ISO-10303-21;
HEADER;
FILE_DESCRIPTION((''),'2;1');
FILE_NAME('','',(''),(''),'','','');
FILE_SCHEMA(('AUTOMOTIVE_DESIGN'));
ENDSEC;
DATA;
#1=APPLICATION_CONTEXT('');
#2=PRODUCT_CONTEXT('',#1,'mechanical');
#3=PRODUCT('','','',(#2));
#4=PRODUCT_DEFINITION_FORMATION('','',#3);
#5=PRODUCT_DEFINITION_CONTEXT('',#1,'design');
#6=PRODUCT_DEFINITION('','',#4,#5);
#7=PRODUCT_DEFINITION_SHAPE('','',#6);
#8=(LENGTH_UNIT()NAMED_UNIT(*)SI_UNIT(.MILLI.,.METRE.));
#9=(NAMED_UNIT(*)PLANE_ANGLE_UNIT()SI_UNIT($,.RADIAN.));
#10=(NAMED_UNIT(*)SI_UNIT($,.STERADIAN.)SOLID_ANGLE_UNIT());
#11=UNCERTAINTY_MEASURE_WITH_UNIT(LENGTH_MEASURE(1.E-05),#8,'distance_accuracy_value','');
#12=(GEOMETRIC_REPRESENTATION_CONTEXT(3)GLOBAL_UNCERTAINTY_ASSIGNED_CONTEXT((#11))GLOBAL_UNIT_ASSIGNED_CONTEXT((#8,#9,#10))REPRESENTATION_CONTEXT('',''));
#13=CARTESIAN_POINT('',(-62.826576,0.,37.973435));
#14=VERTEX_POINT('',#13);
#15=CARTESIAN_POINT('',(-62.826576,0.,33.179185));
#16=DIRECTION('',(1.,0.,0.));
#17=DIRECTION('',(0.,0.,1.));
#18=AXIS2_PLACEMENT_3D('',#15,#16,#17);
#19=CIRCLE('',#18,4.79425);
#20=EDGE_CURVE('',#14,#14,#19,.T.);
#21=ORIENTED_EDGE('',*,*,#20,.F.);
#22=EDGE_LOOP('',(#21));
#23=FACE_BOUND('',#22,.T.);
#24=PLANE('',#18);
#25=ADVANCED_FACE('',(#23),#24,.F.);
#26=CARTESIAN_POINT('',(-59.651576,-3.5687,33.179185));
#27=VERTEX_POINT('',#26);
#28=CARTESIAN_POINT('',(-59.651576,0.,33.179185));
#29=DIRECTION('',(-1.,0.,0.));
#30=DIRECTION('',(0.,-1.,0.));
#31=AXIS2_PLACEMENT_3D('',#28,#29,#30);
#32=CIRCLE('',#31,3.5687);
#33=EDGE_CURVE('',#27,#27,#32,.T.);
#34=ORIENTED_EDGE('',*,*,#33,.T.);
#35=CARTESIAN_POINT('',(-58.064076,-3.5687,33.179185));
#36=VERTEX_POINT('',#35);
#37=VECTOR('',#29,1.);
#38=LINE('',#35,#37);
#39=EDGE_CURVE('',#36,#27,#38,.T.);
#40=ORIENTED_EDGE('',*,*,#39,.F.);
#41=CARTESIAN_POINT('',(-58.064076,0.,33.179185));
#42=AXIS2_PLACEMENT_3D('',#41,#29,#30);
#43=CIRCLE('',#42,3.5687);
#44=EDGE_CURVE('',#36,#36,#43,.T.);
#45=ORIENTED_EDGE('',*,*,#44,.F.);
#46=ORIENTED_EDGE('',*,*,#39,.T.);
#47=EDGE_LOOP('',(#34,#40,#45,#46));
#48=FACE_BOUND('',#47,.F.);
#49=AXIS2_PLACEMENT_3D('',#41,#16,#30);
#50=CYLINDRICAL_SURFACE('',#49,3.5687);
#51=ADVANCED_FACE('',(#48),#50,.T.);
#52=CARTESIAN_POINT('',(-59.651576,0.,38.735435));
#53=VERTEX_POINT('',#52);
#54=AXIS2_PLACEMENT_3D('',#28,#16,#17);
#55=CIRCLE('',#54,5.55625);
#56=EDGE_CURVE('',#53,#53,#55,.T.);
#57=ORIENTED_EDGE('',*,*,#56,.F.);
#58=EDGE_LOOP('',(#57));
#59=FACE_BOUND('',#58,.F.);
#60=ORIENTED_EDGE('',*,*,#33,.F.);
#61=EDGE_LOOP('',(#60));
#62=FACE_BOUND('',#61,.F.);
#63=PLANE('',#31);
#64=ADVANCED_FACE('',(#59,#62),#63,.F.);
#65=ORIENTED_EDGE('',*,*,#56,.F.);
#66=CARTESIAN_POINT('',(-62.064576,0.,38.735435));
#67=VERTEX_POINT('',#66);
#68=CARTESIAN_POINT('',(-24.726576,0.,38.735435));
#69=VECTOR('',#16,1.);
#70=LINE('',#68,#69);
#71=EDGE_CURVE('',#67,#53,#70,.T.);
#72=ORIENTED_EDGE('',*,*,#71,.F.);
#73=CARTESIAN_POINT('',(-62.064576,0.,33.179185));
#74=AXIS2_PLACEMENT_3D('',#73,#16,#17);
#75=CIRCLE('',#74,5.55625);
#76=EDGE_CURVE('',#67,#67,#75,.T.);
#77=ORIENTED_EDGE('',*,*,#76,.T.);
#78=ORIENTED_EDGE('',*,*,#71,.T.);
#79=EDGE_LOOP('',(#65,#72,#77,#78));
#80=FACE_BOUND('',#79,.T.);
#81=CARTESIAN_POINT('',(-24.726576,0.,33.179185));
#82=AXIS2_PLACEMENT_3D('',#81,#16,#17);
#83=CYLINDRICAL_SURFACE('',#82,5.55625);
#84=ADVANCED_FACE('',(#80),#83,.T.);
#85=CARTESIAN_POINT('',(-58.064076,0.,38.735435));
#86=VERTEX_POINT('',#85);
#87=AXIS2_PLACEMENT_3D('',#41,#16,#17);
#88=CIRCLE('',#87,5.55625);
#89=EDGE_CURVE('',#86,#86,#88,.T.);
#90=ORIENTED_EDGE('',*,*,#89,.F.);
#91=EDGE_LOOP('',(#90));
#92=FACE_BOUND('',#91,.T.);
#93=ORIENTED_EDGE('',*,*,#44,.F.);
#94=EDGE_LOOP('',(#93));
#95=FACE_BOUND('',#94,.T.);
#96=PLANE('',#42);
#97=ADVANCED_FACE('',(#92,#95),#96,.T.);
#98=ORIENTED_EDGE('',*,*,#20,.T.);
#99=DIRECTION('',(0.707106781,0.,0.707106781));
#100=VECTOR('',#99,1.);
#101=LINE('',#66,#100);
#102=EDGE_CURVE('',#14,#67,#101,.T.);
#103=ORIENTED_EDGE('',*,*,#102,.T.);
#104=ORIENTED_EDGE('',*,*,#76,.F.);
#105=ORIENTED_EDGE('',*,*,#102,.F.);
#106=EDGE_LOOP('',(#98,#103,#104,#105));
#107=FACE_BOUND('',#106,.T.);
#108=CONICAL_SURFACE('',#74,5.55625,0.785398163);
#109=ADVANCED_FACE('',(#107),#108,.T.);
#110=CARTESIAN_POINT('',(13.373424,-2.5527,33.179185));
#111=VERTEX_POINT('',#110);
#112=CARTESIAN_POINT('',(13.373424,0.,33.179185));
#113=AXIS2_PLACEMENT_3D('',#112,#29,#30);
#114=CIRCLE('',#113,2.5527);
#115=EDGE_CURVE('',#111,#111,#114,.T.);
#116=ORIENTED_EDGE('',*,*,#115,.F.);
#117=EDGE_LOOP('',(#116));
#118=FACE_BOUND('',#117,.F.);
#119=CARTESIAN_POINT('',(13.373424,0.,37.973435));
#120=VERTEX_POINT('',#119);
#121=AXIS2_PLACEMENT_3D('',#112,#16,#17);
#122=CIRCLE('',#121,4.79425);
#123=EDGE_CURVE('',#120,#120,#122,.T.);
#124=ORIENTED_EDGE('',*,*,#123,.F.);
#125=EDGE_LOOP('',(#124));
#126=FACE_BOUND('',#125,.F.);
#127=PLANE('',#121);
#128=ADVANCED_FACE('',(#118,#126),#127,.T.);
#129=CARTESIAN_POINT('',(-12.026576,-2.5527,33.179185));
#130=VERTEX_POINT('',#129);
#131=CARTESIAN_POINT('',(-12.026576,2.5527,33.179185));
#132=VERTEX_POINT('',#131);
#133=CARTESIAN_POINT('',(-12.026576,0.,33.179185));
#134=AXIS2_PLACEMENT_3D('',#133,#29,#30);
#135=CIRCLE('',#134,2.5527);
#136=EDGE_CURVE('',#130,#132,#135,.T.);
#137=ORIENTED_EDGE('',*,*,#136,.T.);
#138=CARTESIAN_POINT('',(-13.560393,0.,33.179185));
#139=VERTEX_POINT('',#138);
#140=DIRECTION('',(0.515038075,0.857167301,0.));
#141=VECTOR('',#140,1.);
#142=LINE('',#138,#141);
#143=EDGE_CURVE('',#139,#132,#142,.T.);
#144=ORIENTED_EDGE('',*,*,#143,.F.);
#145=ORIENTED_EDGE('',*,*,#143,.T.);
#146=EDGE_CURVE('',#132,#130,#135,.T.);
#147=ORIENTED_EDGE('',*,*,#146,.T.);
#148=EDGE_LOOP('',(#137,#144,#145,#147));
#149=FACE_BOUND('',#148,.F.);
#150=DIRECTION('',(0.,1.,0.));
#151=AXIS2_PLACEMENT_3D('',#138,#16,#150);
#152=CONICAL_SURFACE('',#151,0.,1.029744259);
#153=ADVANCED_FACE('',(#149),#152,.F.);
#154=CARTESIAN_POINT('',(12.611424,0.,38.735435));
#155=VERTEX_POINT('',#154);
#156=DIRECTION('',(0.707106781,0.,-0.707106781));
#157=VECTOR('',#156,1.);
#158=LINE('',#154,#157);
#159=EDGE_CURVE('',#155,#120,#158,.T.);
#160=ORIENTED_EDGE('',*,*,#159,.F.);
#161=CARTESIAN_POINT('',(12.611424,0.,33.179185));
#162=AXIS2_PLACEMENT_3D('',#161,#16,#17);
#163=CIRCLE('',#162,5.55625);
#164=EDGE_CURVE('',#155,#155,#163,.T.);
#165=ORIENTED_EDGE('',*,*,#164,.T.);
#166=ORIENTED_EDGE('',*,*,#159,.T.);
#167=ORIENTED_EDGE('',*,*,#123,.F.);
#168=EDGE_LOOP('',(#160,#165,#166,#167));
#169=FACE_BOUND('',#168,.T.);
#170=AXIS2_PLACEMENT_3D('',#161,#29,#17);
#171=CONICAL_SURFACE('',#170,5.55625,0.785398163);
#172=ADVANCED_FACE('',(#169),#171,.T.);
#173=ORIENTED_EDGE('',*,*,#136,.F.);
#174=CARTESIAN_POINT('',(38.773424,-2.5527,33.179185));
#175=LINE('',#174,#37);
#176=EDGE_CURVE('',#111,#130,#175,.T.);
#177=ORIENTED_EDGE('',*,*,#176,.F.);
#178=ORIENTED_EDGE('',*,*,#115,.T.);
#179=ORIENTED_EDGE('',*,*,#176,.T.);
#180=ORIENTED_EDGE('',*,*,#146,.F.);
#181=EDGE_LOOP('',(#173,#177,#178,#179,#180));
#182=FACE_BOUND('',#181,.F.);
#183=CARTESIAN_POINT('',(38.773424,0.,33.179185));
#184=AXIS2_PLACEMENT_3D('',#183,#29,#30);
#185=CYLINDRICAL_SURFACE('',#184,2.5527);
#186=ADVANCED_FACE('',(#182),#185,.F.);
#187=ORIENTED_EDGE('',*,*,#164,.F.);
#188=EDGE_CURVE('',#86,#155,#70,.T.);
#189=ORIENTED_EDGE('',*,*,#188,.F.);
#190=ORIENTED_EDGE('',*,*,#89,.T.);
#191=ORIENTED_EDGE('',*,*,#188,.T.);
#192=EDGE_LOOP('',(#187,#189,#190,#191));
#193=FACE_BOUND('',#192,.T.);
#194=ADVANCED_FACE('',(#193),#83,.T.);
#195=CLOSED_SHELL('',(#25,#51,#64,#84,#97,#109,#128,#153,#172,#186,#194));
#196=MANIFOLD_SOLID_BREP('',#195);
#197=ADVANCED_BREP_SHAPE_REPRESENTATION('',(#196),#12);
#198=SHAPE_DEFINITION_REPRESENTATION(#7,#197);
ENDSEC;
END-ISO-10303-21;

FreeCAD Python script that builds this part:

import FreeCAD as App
import Part
import Sketcher
Q = App.Units.Quantity


def edges_at(feature, points):
    """Names of the edges that pass closest to the given points."""
    edges = feature.Shape.Edges
    near = lambda p: min(range(len(edges)), key=lambda i: edges[i].distToShape(Part.Vertex(*p))[0])
    return sorted({f"Edge{near(p) + 1}" for p in points})

doc = App.newDocument("Part")
body = doc.addObject("PartDesign::Body", "Body")

# Sketch on XZ plane
sketch1 = body.newObject("Sketcher::SketchObject", "Sketch")
sketch1.AttachmentSupport = (doc.getObject("XZ_Plane"), [""])
sketch1.MapMode = "FlatFace"
sketch1.addGeometry([
    Part.LineSegment(App.Vector(-63, 39, 0), App.Vector(-63, 33, 0)),
    Part.LineSegment(App.Vector(-63, 33, 0), App.Vector(13, 33, 0)),
    Part.LineSegment(App.Vector(13, 33, 0), App.Vector(13, 39, 0)),
    Part.LineSegment(App.Vector(13, 39, 0), App.Vector(-63, 39, 0)),
], False)
sketch1.addGeometry(Part.LineSegment(App.Vector(-63, 33, 0), App.Vector(13, 33, 0)), True)  # axis
sketch1.addConstraint([
    Sketcher.Constraint("Coincident", 0, 2, 1, 1),
    Sketcher.Constraint("Coincident", 1, 2, 2, 1),
    Sketcher.Constraint("Coincident", 2, 2, 3, 1),
    Sketcher.Constraint("Coincident", 3, 2, 0, 1),
    Sketcher.Constraint("Vertical", 0),
    Sketcher.Constraint("Horizontal", 1),
    Sketcher.Constraint("Vertical", 2),
    Sketcher.Constraint("Horizontal", 3),
    Sketcher.Constraint("Horizontal", 4),
    Sketcher.Constraint("Coincident", 4, 1, 0, 2),
    Sketcher.Constraint("Vertical", 2, 2, 4, 2),
    Sketcher.Constraint("DistanceX", 1, 1, 1, 2, Q("3 in")),
    Sketcher.Constraint("DistanceY", 0, 2, 0, 1, Q("0.21875 in")),
    Sketcher.Constraint("DistanceX", 0, 2, -1, 1, Q("62.826576 mm")),
    Sketcher.Constraint("DistanceY", -1, 1, 0, 2, Q("33.179185 mm")),
])
revolution = body.newObject("PartDesign::Revolution", "Revolution")
revolution.Profile = sketch1
revolution.ReferenceAxis = (sketch1, ["Axis0"])
revolution.Angle = 360

# Sketch on YZ plane
sketch2 = body.newObject("Sketcher::SketchObject", "Sketch001")
sketch2.AttachmentSupport = (doc.getObject("YZ_Plane"), [""])
sketch2.MapMode = "FlatFace"
sketch2.AttachmentOffset = App.Placement(App.Vector(0, 0, -58.064076), App.Rotation())
sketch2.addGeometry([
    Part.Circle(App.Vector(0, 33.2, 0), App.Vector(0, 0, 1), 8.9),
    Part.Circle(App.Vector(0, 33.2, 0), App.Vector(0, 0, 1), 3.6),
], False)
sketch2.addConstraint([
    Sketcher.Constraint("Coincident", 1, 3, 0, 3),
    Sketcher.Constraint("PointOnObject", 0, 3, -2),
    Sketcher.Constraint("Diameter", 0, Q("0.7 in")),
    Sketcher.Constraint("Diameter", 1, Q("0.281 in")),
    Sketcher.Constraint("DistanceY", -1, 1, 0, 3, Q("33.179185 mm")),
])
pocket1 = body.newObject("PartDesign::Pocket", "Pocket")
pocket1.Profile = sketch2
pocket1.Length = Q("0.0625 in")
doc.recompute()

chamfer = body.newObject("PartDesign::Chamfer", "Chamfer")
chamfer.Base = (pocket1, edges_at(pocket1, [(-62.827, 0, 27.623), (13.373, 0, 27.623)]))
chamfer.ChamferType = "Two distances"
chamfer.Size = Q("0.03 in")
chamfer.Size2 = Q("0.03 in")

# Sketch on YZ plane
sketch3 = body.newObject("Sketcher::SketchObject", "Sketch002")
sketch3.AttachmentSupport = (doc.getObject("YZ_Plane"), [""])
sketch3.MapMode = "FlatFace"
sketch3.AttachmentOffset = App.Placement(App.Vector(0, 0, 13.373424), App.Rotation())
sketch3.addGeometry(Part.Circle(App.Vector(0, 33.2, 0), App.Vector(0, 0, 1), 2.6), False)
sketch3.addConstraint([
    Sketcher.Constraint("PointOnObject", 0, 3, -2),
    Sketcher.Constraint("Diameter", 0, Q("0.201 in")),
    Sketcher.Constraint("DistanceY", -1, 1, 0, 3, Q("33.179185 mm")),
])
doc.recompute()
hole = body.newObject("PartDesign::Hole", "Hole")
hole.Profile = sketch3
hole.ThreadType = "None"
hole.Diameter = Q("0.201 in")
hole.DepthType = "Dimension"
hole.Depth = Q("1 in")
hole.DrillPoint = "Angled"
hole.DrillPointAngle = 118

doc.recompute()
